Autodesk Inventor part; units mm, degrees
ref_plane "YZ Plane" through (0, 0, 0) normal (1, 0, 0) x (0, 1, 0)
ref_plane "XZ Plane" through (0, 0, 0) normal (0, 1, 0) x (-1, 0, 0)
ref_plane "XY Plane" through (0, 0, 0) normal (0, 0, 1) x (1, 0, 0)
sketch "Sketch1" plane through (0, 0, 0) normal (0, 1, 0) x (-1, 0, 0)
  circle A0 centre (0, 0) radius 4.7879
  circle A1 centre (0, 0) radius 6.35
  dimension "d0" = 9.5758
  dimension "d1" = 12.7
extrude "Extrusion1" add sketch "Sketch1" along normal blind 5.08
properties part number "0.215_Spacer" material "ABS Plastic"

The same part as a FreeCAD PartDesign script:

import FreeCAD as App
import Part
import Sketcher
Q = App.Units.Quantity

doc = App.newDocument("Part")
body = doc.addObject("PartDesign::Body", "Body")

# Sketch on XZ plane
sketch1 = doc.addObject("Sketcher::SketchObject", "Sketch")
body.addObject(sketch1)
sketch1.AttachmentSupport = (doc.XZ_Plane, [""])
sketch1.MapMode = "FlatFace"
sketch1.addGeometry(Part.Circle(App.Vector(0, 0, 0), App.Vector(0, 0, 1), 6.35), False)
sketch1.addGeometry(Part.Circle(App.Vector(0, 0, 0), App.Vector(0, 0, 1), 4.7879), False)
sketch1.addConstraint(Sketcher.Constraint("Coincident", 0, 3, -1, 1))
sketch1.addConstraint(Sketcher.Constraint("Coincident", 1, 3, -1, 1))
sketch1.addConstraint(Sketcher.Constraint("Diameter", 0, Q("0.5 in")))
sketch1.addConstraint(Sketcher.Constraint("Diameter", 1, Q("0.377 in")))
pad1 = doc.addObject("PartDesign::Pad", "Pad")
body.addObject(pad1)
pad1.Profile = sketch1
pad1.Length = Q("0.2 in")
pad1.Reversed = True

doc.recompute()
